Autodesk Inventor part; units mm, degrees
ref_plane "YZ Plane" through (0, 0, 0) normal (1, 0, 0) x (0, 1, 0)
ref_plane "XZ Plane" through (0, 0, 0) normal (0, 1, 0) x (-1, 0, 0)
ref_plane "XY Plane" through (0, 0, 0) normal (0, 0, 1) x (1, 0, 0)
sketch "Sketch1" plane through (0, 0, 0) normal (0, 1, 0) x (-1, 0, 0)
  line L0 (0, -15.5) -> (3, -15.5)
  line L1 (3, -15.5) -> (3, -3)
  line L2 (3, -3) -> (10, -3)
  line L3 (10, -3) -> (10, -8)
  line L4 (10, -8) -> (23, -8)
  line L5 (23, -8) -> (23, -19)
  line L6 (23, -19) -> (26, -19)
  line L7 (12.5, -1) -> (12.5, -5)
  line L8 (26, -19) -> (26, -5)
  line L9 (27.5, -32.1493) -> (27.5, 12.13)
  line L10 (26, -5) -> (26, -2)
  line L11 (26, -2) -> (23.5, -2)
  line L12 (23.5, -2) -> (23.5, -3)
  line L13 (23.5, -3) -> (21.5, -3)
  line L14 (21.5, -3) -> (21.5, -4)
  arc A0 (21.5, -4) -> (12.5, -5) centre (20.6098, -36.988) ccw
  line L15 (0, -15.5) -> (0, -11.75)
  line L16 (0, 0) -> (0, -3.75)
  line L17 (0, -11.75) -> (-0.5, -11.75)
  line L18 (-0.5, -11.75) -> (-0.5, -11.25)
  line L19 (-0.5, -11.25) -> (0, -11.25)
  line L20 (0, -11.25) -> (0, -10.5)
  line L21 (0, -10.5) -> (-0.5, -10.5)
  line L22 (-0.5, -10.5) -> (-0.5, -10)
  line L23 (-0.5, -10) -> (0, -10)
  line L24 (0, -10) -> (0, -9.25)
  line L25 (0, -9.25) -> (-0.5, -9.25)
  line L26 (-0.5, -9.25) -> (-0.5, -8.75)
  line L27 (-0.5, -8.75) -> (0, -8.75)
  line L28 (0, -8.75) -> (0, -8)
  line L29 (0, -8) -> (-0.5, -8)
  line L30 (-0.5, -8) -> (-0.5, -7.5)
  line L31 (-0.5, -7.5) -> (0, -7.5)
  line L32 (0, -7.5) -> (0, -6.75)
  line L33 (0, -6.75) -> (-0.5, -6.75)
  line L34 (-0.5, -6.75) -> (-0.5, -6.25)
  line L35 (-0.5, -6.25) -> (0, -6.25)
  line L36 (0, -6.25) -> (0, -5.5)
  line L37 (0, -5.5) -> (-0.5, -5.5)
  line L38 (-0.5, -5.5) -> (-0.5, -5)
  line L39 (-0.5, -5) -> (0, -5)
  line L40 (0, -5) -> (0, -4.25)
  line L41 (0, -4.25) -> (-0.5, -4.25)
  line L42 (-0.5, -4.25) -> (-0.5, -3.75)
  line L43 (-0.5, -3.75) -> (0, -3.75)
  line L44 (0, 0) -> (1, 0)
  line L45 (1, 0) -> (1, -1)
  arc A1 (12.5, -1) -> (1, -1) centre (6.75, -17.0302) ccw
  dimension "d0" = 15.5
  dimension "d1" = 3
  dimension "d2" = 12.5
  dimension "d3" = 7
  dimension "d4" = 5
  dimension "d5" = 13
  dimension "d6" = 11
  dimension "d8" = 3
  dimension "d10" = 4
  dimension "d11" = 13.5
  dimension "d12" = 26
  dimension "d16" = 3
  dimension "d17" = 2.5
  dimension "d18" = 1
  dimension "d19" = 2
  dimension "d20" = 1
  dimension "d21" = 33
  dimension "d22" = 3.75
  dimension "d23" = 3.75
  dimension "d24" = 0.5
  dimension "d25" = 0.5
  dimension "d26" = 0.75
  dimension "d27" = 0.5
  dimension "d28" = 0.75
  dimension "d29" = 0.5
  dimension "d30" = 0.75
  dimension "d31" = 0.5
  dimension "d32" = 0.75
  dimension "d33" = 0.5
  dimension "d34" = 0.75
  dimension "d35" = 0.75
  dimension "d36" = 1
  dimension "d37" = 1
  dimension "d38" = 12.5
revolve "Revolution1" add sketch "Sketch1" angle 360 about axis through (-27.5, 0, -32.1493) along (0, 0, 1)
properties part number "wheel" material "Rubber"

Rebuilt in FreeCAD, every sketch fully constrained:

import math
import FreeCAD as App
import Part
import Sketcher
from FreeCAD import Vector

doc = App.newDocument("Part")
params = doc.addObject("Spreadsheet::Sheet", "Params")
for row, (alias, value) in enumerate([
    ("sketch1_radius", "33 mm"),
    ("sketch1_width", "3 mm"),
    ("sketch1_width2", "7 mm"),
    ("sketch1_width3", "13 mm"),
    ("sketch1_width4", "2 mm"),
    ("revolution_angle", "360 deg"),
], start=1):
    params.set(f"A{row}", alias)
    params.set(f"B{row}", "=" + value)
    params.setAlias(f"B{row}", alias)

body = doc.addObject("PartDesign::Body", "Body")

# Sketch on XZ plane
sketch1 = body.newObject("Sketcher::SketchObject", "Sketch")
sketch1.AttachmentSupport = (doc.getObject("XZ_Plane"), [""])
sketch1.MapMode = "FlatFace"
sketch1.addGeometry([
    Part.LineSegment(Vector(0, -11.8, 0), Vector(0, -15.5, 0)),  # 0
    Part.LineSegment(Vector(0, -15.5, 0), Vector(-3, -15.5, 0)),  # 1
    Part.LineSegment(Vector(-3, -15.5, 0), Vector(-3, -3, 0)),  # 2
    Part.LineSegment(Vector(-3, -3, 0), Vector(-10, -3, 0)),  # 3
    Part.LineSegment(Vector(-10, -3, 0), Vector(-10, -8, 0)),  # 4
    Part.LineSegment(Vector(-10, -8, 0), Vector(-23, -8, 0)),  # 5
    Part.LineSegment(Vector(-23, -8, 0), Vector(-23, -19, 0)),  # 6
    Part.LineSegment(Vector(-23, -19, 0), Vector(-26, -19, 0)),  # 7
    Part.LineSegment(Vector(-26, -19, 0), Vector(-26, -2, 0)),  # 8
    Part.LineSegment(Vector(-26, -2, 0), Vector(-23.5, -2, 0)),  # 9
    Part.LineSegment(Vector(-23.5, -2, 0), Vector(-23.5, -3, 0)),  # 10
    Part.LineSegment(Vector(-23.5, -3, 0), Vector(-21.5, -3, 0)),  # 11
    Part.LineSegment(Vector(-21.5, -3, 0), Vector(-21.5, -4, 0)),  # 12
    Part.ArcOfCircle(Part.Circle(Vector(-20.6, -37, 0), Vector(0, 0, 1), 33), math.radians(75.77), math.radians(91.55)),  # 13
    Part.LineSegment(Vector(-12.5, -5, 0), Vector(-12.5, -1, 0)),  # 14
    Part.ArcOfCircle(Part.Circle(Vector(-6.8, -17, 0), Vector(0, 0, 1), 17), math.radians(70), math.radians(110)),  # 15
    Part.LineSegment(Vector(-1, -1, 0), Vector(-1, 0, 0)),  # 16
    Part.LineSegment(Vector(-1, 0, 0), Vector(0, 0, 0)),  # 17
    Part.LineSegment(Vector(0, 0, 0), Vector(0, -3.8, 0)),  # 18
    Part.LineSegment(Vector(0, -3.8, 0), Vector(0.5, -3.8, 0)),  # 19
    Part.LineSegment(Vector(0.5, -3.8, 0), Vector(0.5, -4.2, 0)),  # 20
    Part.LineSegment(Vector(0.5, -4.2, 0), Vector(0, -4.2, 0)),  # 21
    Part.LineSegment(Vector(0, -4.2, 0), Vector(0, -5, 0)),  # 22
    Part.LineSegment(Vector(0, -5, 0), Vector(0.5, -5, 0)),  # 23
    Part.LineSegment(Vector(0.5, -5, 0), Vector(0.5, -5.5, 0)),  # 24
    Part.LineSegment(Vector(0.5, -5.5, 0), Vector(0, -5.5, 0)),  # 25
    Part.LineSegment(Vector(0, -5.5, 0), Vector(0, -6.2, 0)),  # 26
    Part.LineSegment(Vector(0, -6.2, 0), Vector(0.5, -6.2, 0)),  # 27
    Part.LineSegment(Vector(0.5, -6.2, 0), Vector(0.5, -6.8, 0)),  # 28
    Part.LineSegment(Vector(0.5, -6.8, 0), Vector(0, -6.8, 0)),  # 29
    Part.LineSegment(Vector(0, -6.8, 0), Vector(0, -7.5, 0)),  # 30
    Part.LineSegment(Vector(0, -7.5, 0), Vector(0.5, -7.5, 0)),  # 31
    Part.LineSegment(Vector(0.5, -7.5, 0), Vector(0.5, -8, 0)),  # 32
    Part.LineSegment(Vector(0.5, -8, 0), Vector(0, -8, 0)),  # 33
    Part.LineSegment(Vector(0, -8, 0), Vector(0, -8.8, 0)),  # 34
    Part.LineSegment(Vector(0, -8.8, 0), Vector(0.5, -8.8, 0)),  # 35
    Part.LineSegment(Vector(0.5, -8.8, 0), Vector(0.5, -9.2, 0)),  # 36
    Part.LineSegment(Vector(0.5, -9.2, 0), Vector(0, -9.2, 0)),  # 37
    Part.LineSegment(Vector(0, -9.2, 0), Vector(0, -10, 0)),  # 38
    Part.LineSegment(Vector(0, -10, 0), Vector(0.5, -10, 0)),  # 39
    Part.LineSegment(Vector(0.5, -10, 0), Vector(0.5, -10.5, 0)),  # 40
    Part.LineSegment(Vector(0.5, -10.5, 0), Vector(0, -10.5, 0)),  # 41
    Part.LineSegment(Vector(0, -10.5, 0), Vector(0, -11.2, 0)),  # 42
    Part.LineSegment(Vector(0, -11.2, 0), Vector(0.5, -11.2, 0)),  # 43
    Part.LineSegment(Vector(0.5, -11.2, 0), Vector(0.5, -11.8, 0)),  # 44
    Part.LineSegment(Vector(0.5, -11.8, 0), Vector(0, -11.8, 0)),  # 45
], False)
sketch1.addGeometry(Part.LineSegment(Vector(-27.5, -37, 0), Vector(-27.5, 0, 0)), True)  # axis
sketch1.addConstraint([
    Sketcher.Constraint("Coincident", 0, 2, 1, 1),
    Sketcher.Constraint("Coincident", 1, 2, 2, 1),
    Sketcher.Constraint("Coincident", 2, 2, 3, 1),
    Sketcher.Constraint("Coincident", 3, 2, 4, 1),
    Sketcher.Constraint("Coincident", 4, 2, 5, 1),
    Sketcher.Constraint("Coincident", 5, 2, 6, 1),
    Sketcher.Constraint("Coincident", 6, 2, 7, 1),
    Sketcher.Constraint("Coincident", 7, 2, 8, 1),
    Sketcher.Constraint("Coincident", 8, 2, 9, 1),
    Sketcher.Constraint("Coincident", 9, 2, 10, 1),
    Sketcher.Constraint("Coincident", 10, 2, 11, 1),
    Sketcher.Constraint("Coincident", 11, 2, 12, 1),
    Sketcher.Constraint("Coincident", 12, 2, 13, 2),
    Sketcher.Constraint("Coincident", 13, 1, 14, 1),
    Sketcher.Constraint("Coincident", 14, 2, 15, 2),
    Sketcher.Constraint("Coincident", 15, 1, 16, 1),
    Sketcher.Constraint("Coincident", 16, 2, 17, 1),
    Sketcher.Constraint("Coincident", 17, 2, 18, 1),
    Sketcher.Constraint("Coincident", 18, 2, 19, 1),
    Sketcher.Constraint("Coincident", 19, 2, 20, 1),
    Sketcher.Constraint("Coincident", 20, 2, 21, 1),
    Sketcher.Constraint("Coincident", 21, 2, 22, 1),
    Sketcher.Constraint("Coincident", 22, 2, 23, 1),
    Sketcher.Constraint("Coincident", 23, 2, 24, 1),
    Sketcher.Constraint("Coincident", 24, 2, 25, 1),
    Sketcher.Constraint("Coincident", 25, 2, 26, 1),
    Sketcher.Constraint("Coincident", 26, 2, 27, 1),
    Sketcher.Constraint("Coincident", 27, 2, 28, 1),
    Sketcher.Constraint("Coincident", 28, 2, 29, 1),
    Sketcher.Constraint("Coincident", 29, 2, 30, 1),
    Sketcher.Constraint("Coincident", 30, 2, 31, 1),
    Sketcher.Constraint("Coincident", 31, 2, 32, 1),
    Sketcher.Constraint("Coincident", 32, 2, 33, 1),
    Sketcher.Constraint("Coincident", 33, 2, 34, 1),
    Sketcher.Constraint("Coincident", 34, 2, 35, 1),
    Sketcher.Constraint("Coincident", 35, 2, 36, 1),
    Sketcher.Constraint("Coincident", 36, 2, 37, 1),
    Sketcher.Constraint("Coincident", 37, 2, 38, 1),
    Sketcher.Constraint("Coincident", 38, 2, 39, 1),
    Sketcher.Constraint("Coincident", 39, 2, 40, 1),
    Sketcher.Constraint("Coincident", 40, 2, 41, 1),
    Sketcher.Constraint("Coincident", 41, 2, 42, 1),
    Sketcher.Constraint("Coincident", 42, 2, 43, 1),
    Sketcher.Constraint("Coincident", 43, 2, 44, 1),
    Sketcher.Constraint("Coincident", 44, 2, 45, 1),
    Sketcher.Constraint("Coincident", 45, 2, 0, 1),
    Sketcher.Constraint("Vertical", 0),
    Sketcher.Constraint("Horizontal", 1),
    Sketcher.Constraint("Vertical", 2),
    Sketcher.Constraint("Horizontal", 3),
    Sketcher.Constraint("Vertical", 4),
    Sketcher.Constraint("Horizontal", 5),
    Sketcher.Constraint("Vertical", 6),
    Sketcher.Constraint("Horizontal", 7),
    Sketcher.Constraint("Vertical", 8),
    Sketcher.Constraint("Horizontal", 9),
    Sketcher.Constraint("Vertical", 10),
    Sketcher.Constraint("Horizontal", 11),
    Sketcher.Constraint("Vertical", 12),
    Sketcher.Constraint("Vertical", 14),
    Sketcher.Constraint("Vertical", 16),
    Sketcher.Constraint("Horizontal", 17),
    Sketcher.Constraint("Vertical", 18),
    Sketcher.Constraint("Horizontal", 19),
    Sketcher.Constraint("Vertical", 20),
    Sketcher.Constraint("Horizontal", 21),
    Sketcher.Constraint("Vertical", 22),
    Sketcher.Constraint("Horizontal", 23),
    Sketcher.Constraint("Vertical", 24),
    Sketcher.Constraint("Horizontal", 25),
    Sketcher.Constraint("Vertical", 26),
    Sketcher.Constraint("Horizontal", 27),
    Sketcher.Constraint("Vertical", 28),
    Sketcher.Constraint("Horizontal", 29),
    Sketcher.Constraint("Vertical", 30),
    Sketcher.Constraint("Horizontal", 31),
    Sketcher.Constraint("Vertical", 32),
    Sketcher.Constraint("Horizontal", 33),
    Sketcher.Constraint("Vertical", 34),
    Sketcher.Constraint("Horizontal", 35),
    Sketcher.Constraint("Vertical", 36),
    Sketcher.Constraint("Horizontal", 37),
    Sketcher.Constraint("Vertical", 38),
    Sketcher.Constraint("Horizontal", 39),
    Sketcher.Constraint("Vertical", 40),
    Sketcher.Constraint("Horizontal", 41),
    Sketcher.Constraint("Vertical", 42),
    Sketcher.Constraint("Horizontal", 43),
    Sketcher.Constraint("Vertical", 44),
    Sketcher.Constraint("Horizontal", 45),
    Sketcher.Constraint("Vertical", 46),
    Sketcher.Constraint("Coincident", 17, 2, -1, 1),
    Sketcher.Constraint("PointOnObject", 0, 2, -2),
    Sketcher.Constraint("PointOnObject", 21, 2, -2),
    Sketcher.Constraint("PointOnObject", 25, 2, -2),
    Sketcher.Constraint("PointOnObject", 29, 2, -2),
    Sketcher.Constraint("PointOnObject", 33, 2, -2),
    Sketcher.Constraint("PointOnObject", 37, 2, -2),
    Sketcher.Constraint("PointOnObject", 41, 2, -2),
    Sketcher.Constraint("PointOnObject", 46, 2, -1),
    Sketcher.Constraint("Horizontal", 3, 2, 10, 2),
    Sketcher.Constraint("Horizontal", 14, 2, 15, 1),
    Sketcher.Constraint("Horizontal", 13, 1, 22, 2),
    Sketcher.Constraint("Horizontal", 5, 2, 32, 2),
    Sketcher.Constraint("Horizontal", 13, 3, 46, 1),
    Sketcher.Constraint("Vertical", 20, 2, 23, 2),
    Sketcher.Constraint("Vertical", 24, 2, 27, 2),
    Sketcher.Constraint("Vertical", 28, 2, 31, 2),
    Sketcher.Constraint("Vertical", 32, 2, 35, 2),
    Sketcher.Constraint("Vertical", 36, 2, 39, 2),
    Sketcher.Constraint("Vertical", 40, 2, 43, 2),
    Sketcher.Constraint("Equal", 1, 7),
    Sketcher.Constraint("Equal", 17, 10),
    Sketcher.Constraint("Equal", 10, 12),
    Sketcher.Constraint("Equal", 12, 16),
    Sketcher.Constraint("Equal", 0, 18),
    Sketcher.Constraint("Equal", 45, 20),
    Sketcher.Constraint("Equal", 20, 24),
    Sketcher.Constraint("Equal", 22, 26),
    Sketcher.Constraint("Equal", 24, 28),
    Sketcher.Constraint("Equal", 26, 30),
    Sketcher.Constraint("Equal", 28, 32),
    Sketcher.Constraint("Equal", 30, 34),
    Sketcher.Constraint("Equal", 32, 36),
    Sketcher.Constraint("Equal", 34, 38),
    Sketcher.Constraint("Equal", 36, 40),
    Sketcher.Constraint("Equal", 38, 42),
    Sketcher.Constraint("Equal", 40, 44),
    Sketcher.Constraint("Radius", 13, 33.0),
    Sketcher.Constraint("DistanceX", 1, 2, 1, 1, 3.0),
    Sketcher.Constraint("DistanceX", 3, 2, 3, 1, 7.0),
    Sketcher.Constraint("DistanceX", 5, 2, 5, 1, 13.0),
    Sketcher.Constraint("DistanceX", 11, 1, 11, 2, 2.0),
    Sketcher.Constraint("DistanceX", 17, 1, 17, 2, 1.0),
    Sketcher.Constraint("DistanceY", 4, 2, 4, 1, 5.0),
    Sketcher.Constraint("DistanceY", 6, 2, 6, 1, 11.0),
    Sketcher.Constraint("DistanceY", 14, 1, 14, 2, 4.0),
    Sketcher.Constraint("DistanceX", 9, 1, 9, 2, 2.5),
    Sketcher.Constraint("DistanceX", 19, 1, 19, 2, 0.5),
    Sketcher.Constraint("DistanceY", 2, 1, 2, 2, 12.5),
    Sketcher.Constraint("DistanceX", 46, 2, 9, 2, 4.0),
    Sketcher.Constraint("DistanceX", 13, 1, -1, 1, 12.5),
    Sketcher.Constraint("Radius", 15, 17.0303),
])
sketch1.setExpression("Constraints[128]", "Params.sketch1_radius")
sketch1.setExpression("Constraints[129]", "Params.sketch1_width")
sketch1.setExpression("Constraints[130]", "Params.sketch1_width2")
sketch1.setExpression("Constraints[131]", "Params.sketch1_width3")
sketch1.setExpression("Constraints[132]", "Params.sketch1_width4")
revolution = body.newObject("PartDesign::Revolution", "Revolution")
revolution.Profile = sketch1
revolution.ReferenceAxis = (sketch1, ["Axis0"])
revolution.setExpression("Angle", "Params.revolution_angle")

doc.recompute()
